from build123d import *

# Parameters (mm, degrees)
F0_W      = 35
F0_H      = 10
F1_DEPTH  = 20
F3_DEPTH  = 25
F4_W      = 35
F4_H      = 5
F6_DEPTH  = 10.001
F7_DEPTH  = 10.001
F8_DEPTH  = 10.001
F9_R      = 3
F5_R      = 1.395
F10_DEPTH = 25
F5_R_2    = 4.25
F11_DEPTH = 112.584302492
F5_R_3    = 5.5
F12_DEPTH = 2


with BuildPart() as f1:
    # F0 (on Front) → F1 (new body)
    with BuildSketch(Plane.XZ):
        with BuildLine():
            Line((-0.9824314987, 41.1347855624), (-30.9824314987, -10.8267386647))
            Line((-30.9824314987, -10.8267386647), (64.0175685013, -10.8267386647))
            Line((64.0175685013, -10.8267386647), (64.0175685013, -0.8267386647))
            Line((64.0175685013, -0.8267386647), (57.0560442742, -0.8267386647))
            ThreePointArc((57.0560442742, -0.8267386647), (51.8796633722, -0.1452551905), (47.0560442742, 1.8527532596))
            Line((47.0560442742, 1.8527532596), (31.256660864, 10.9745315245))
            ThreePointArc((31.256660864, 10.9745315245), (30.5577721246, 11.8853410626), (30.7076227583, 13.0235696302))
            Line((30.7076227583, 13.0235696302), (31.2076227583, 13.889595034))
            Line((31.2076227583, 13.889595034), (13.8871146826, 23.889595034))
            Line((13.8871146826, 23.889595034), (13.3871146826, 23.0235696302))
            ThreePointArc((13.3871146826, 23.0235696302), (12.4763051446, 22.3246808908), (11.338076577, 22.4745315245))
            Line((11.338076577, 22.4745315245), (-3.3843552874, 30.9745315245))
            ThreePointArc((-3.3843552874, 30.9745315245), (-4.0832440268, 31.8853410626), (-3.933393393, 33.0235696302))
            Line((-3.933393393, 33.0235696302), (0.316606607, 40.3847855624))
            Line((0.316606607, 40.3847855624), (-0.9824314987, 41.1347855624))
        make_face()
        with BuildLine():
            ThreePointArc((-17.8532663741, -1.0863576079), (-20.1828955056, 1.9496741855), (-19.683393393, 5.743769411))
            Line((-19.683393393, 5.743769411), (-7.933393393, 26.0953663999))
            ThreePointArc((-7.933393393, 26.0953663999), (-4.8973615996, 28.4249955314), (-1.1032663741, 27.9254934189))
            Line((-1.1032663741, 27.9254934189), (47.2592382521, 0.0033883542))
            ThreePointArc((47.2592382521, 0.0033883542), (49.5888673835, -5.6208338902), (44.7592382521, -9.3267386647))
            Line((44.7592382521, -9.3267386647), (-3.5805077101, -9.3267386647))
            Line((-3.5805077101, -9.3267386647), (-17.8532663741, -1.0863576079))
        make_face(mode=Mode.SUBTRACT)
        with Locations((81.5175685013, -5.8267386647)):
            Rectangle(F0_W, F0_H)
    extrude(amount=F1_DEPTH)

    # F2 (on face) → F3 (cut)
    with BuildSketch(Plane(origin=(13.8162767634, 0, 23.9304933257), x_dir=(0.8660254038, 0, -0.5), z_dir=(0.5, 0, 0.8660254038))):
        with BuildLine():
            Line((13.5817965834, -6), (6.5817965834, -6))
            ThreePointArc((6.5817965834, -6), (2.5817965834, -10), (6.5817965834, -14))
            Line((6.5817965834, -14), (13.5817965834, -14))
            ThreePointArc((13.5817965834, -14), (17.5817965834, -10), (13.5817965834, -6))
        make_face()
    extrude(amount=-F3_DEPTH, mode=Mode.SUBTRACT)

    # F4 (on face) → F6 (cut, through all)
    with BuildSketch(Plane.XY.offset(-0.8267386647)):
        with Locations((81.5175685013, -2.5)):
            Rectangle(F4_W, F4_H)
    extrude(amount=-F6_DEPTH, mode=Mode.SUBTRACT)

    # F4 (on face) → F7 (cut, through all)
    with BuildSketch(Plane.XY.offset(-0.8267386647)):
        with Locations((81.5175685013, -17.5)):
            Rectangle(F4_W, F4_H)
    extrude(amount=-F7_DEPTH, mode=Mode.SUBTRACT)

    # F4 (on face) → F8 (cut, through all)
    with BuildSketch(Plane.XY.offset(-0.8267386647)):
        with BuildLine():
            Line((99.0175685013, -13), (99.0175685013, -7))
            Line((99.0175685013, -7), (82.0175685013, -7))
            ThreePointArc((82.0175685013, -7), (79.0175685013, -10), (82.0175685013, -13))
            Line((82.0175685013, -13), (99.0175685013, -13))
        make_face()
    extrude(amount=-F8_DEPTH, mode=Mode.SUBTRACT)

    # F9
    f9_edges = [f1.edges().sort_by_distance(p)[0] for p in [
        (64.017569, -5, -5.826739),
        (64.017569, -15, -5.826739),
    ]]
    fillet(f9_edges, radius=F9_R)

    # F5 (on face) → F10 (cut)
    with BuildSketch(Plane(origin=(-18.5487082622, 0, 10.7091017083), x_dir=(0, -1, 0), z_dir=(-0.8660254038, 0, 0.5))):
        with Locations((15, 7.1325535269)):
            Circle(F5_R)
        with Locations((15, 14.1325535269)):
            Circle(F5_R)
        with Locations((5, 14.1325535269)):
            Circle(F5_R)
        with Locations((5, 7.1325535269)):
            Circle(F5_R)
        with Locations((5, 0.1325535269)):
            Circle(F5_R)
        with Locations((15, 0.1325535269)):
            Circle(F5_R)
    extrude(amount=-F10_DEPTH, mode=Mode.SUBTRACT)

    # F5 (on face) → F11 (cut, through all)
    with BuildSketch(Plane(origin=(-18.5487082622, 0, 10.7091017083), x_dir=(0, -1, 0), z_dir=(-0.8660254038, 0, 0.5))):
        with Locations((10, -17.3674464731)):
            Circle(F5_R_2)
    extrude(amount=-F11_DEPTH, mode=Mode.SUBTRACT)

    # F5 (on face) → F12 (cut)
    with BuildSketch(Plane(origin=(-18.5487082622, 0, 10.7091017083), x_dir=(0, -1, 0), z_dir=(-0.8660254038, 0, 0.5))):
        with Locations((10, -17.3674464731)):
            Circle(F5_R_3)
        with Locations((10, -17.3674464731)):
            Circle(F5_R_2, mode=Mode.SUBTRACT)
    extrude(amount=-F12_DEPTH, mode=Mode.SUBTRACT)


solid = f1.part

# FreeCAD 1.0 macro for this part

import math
import FreeCAD as App
import Part
import Sketcher

V = App.Vector
Q = App.Units.Quantity


def edges_at(feature, points):
    """Names of the edges that pass closest to the given points."""
    edges = feature.Shape.Edges
    near = lambda p: min(range(len(edges)), key=lambda i: edges[i].distToShape(Part.Vertex(*p))[0])
    return sorted({f"Edge{near(p) + 1}" for p in points})

doc = App.newDocument("Part")
body = doc.addObject("PartDesign::Body", "Body")

sketch1 = doc.addObject("Sketcher::SketchObject", "Sketch")
body.addObject(sketch1)
sketch1.AttachmentSupport = (doc.XZ_Plane, [""])
sketch1.MapMode = "FlatFace"
sketch1.addGeometry([
    Part.LineSegment(V(-0.982431, 41.134786, 0), V(-30.982431, -10.826739, 0)),
    Part.LineSegment(V(-30.982431, -10.826739, 0), V(99.017569, -10.826739, 0)),
    Part.LineSegment(V(99.017569, -10.826739, 0), V(99.017569, -0.826739, 0)),
    Part.LineSegment(V(99.017569, -0.826739, 0), V(57.056044, -0.826739, 0)),
    Part.ArcOfCircle(Part.Circle(V(57.056044, 19.173261, 0), V(0, 0, 1), 20), math.radians(-120), math.radians(-90)),
    Part.LineSegment(V(47.056044, 1.852753, 0), V(31.256661, 10.974532, 0)),
    Part.ArcOfCircle(Part.Circle(V(32.006661, 12.27357, 0), V(0, 0, 1), 1.5), math.radians(150), math.radians(240)),
    Part.LineSegment(V(30.707623, 13.02357, 0), V(31.207623, 13.889595, 0)),
    Part.LineSegment(V(31.207623, 13.889595, 0), V(13.887115, 23.889595, 0)),
    Part.LineSegment(V(13.887115, 23.889595, 0), V(13.387115, 23.02357, 0)),
    Part.ArcOfCircle(Part.Circle(V(12.088077, 23.77357, 0), V(0, 0, 1), 1.5), math.radians(-120), math.radians(-30)),
    Part.LineSegment(V(11.338077, 22.474532, 0), V(-3.384355, 30.974532, 0)),
    Part.ArcOfCircle(Part.Circle(V(-2.634355, 32.27357, 0), V(0, 0, 1), 1.5), math.radians(150), math.radians(240)),
    Part.LineSegment(V(-3.933393, 33.02357, 0), V(0.316607, 40.384786, 0)),
    Part.LineSegment(V(0.316607, 40.384786, 0), V(-0.982431, 41.134786, 0)),
    Part.LineSegment(V(-3.580508, -9.326739, 0), V(-17.853266, -1.086358, 0)),
    Part.ArcOfCircle(Part.Circle(V(-15.353266, 3.243769, 0), V(0, 0, 1), 5), math.radians(150), math.radians(240)),
    Part.LineSegment(V(-19.683393, 5.743769, 0), V(-7.933393, 26.095366, 0)),
    Part.ArcOfCircle(Part.Circle(V(-3.603266, 23.595366, 0), V(0, 0, 1), 5), math.radians(60), math.radians(150)),
    Part.LineSegment(V(-1.103266, 27.925493, 0), V(47.259238, 0.003388, 0)),
    Part.ArcOfCircle(Part.Circle(V(44.759238, -4.326739, 0), V(0, 0, 1), 5), math.radians(-90), math.radians(60)),
    Part.LineSegment(V(44.759238, -9.326739, 0), V(-3.580508, -9.326739, 0)),
], False)
sketch1.addConstraint([
    Sketcher.Constraint("Coincident", 0, 2, 1, 1),
    Sketcher.Constraint("Coincident", 1, 2, 2, 1),
    Sketcher.Constraint("Coincident", 2, 2, 3, 1),
    Sketcher.Constraint("Tangent", 3, 2, 4, 2),
    Sketcher.Constraint("Tangent", 4, 1, 5, 1),
    Sketcher.Constraint("Tangent", 5, 2, 6, 2),
    Sketcher.Constraint("Tangent", 6, 1, 7, 1),
    Sketcher.Constraint("Coincident", 7, 2, 8, 1),
    Sketcher.Constraint("Coincident", 8, 2, 9, 1),
    Sketcher.Constraint("Tangent", 9, 2, 10, 2),
    Sketcher.Constraint("Tangent", 10, 1, 11, 1),
    Sketcher.Constraint("Tangent", 11, 2, 12, 2),
    Sketcher.Constraint("Tangent", 12, 1, 13, 1),
    Sketcher.Constraint("Coincident", 13, 2, 14, 1),
    Sketcher.Constraint("Coincident", 14, 2, 0, 1),
    Sketcher.Constraint("Tangent", 15, 2, 16, 2),
    Sketcher.Constraint("Tangent", 16, 1, 17, 1),
    Sketcher.Constraint("Tangent", 17, 2, 18, 2),
    Sketcher.Constraint("Tangent", 18, 1, 19, 1),
    Sketcher.Constraint("Tangent", 19, 2, 20, 2),
    Sketcher.Constraint("Tangent", 20, 1, 21, 1),
    Sketcher.Constraint("Coincident", 21, 2, 15, 1),
    Sketcher.Constraint("Horizontal", 1),
    Sketcher.Constraint("Vertical", 2),
    Sketcher.Constraint("Horizontal", 3),
    Sketcher.Constraint("Horizontal", 21),
    Sketcher.Constraint("Equal", 6, 10),
    Sketcher.Constraint("Equal", 10, 12),
    Sketcher.Constraint("Equal", 16, 18),
    Sketcher.Constraint("Equal", 18, 20),
    Sketcher.Constraint("Perpendicular", 0, 5),
    Sketcher.Constraint("Perpendicular", 5, 7),
    Sketcher.Constraint("Perpendicular", 7, 8),
    Sketcher.Constraint("Perpendicular", 8, 9),
    Sketcher.Constraint("Perpendicular", 9, 11),
    Sketcher.Constraint("Perpendicular", 11, 13),
    Sketcher.Constraint("Perpendicular", 13, 14),
    Sketcher.Constraint("Parallel", 14, 15),
    Sketcher.Constraint("Perpendicular", 15, 17),
    Sketcher.Constraint("Perpendicular", 17, 19),
    Sketcher.Constraint("Equal", 7, 9),
    Sketcher.Constraint("Radius", 4, 20.0),
    Sketcher.Constraint("Radius", 16, 5.0),
    Sketcher.Constraint("Radius", 6, 1.5),
    Sketcher.Constraint("DistanceX", 1, 1, 1, 2, 130.0),
    Sketcher.Constraint("DistanceY", 2, 1, 2, 2, 10.0),
    Sketcher.Constraint("Angle", 0, Q("-120 deg")),
    Sketcher.Constraint("Distance", 0, 60.0),
    Sketcher.Constraint("Distance", 7, 1.0),
    Sketcher.Constraint("Distance", 8, 20.0),
    Sketcher.Constraint("Distance", 11, 17.0),
    Sketcher.Constraint("DistanceX", 17, 2, 12, 1, 4.0),
    Sketcher.Constraint("Distance", 13, 8.5),
    Sketcher.Constraint("Distance", 14, 1.5),
    Sketcher.Constraint("Distance", 17, 23.5),
    Sketcher.Constraint("DistanceY", 20, 3, 4, 3, 23.5),
    Sketcher.Constraint("DistanceY", 16, 3, 12, 3, 29.0298),
    Sketcher.Constraint("DistanceY", -1, 1, 4, 3, 19.173261),
    Sketcher.Constraint("DistanceX", -1, 1, 6, 3, 32.006661),
])
pad1 = doc.addObject("PartDesign::Pad", "Pad")
body.addObject(pad1)
pad1.Profile = sketch1
pad1.Length = 20

sketch2 = doc.addObject("Sketcher::SketchObject", "Sketch001")
body.addObject(sketch2)
sketch2.Placement = App.Placement(V(13.816277, 0, 23.930493), App.Rotation(V(0.866025404, 0, -0.5), V(0, 1, 0), V(0.5, 0, 0.866025404), "ZXY"))
sketch2.addGeometry([
    Part.LineSegment(V(13.581797, -6, 0), V(6.581797, -6, 0)),
    Part.ArcOfCircle(Part.Circle(V(6.581797, -10, 0), V(0, 0, 1), 4), math.radians(90), math.radians(270)),
    Part.LineSegment(V(6.581797, -14, 0), V(13.581797, -14, 0)),
    Part.ArcOfCircle(Part.Circle(V(13.581797, -10, 0), V(0, 0, 1), 4), math.radians(-90), math.radians(90)),
], False)
sketch2.addConstraint([
    Sketcher.Constraint("Tangent", 0, 2, 1, 1),
    Sketcher.Constraint("Tangent", 1, 2, 2, 1),
    Sketcher.Constraint("Tangent", 2, 2, 3, 1),
    Sketcher.Constraint("Tangent", 3, 2, 0, 1),
    Sketcher.Constraint("Horizontal", 0),
    Sketcher.Constraint("Horizontal", 2),
    Sketcher.Constraint("Radius", 1, 4.0),
    Sketcher.Constraint("DistanceX", 0, 2, 0, 1, 7.0),
    Sketcher.Constraint("DistanceY", 1, 3, -1, 1, 10.0),
    Sketcher.Constraint("DistanceX", -1, 1, 1, 3, 6.581797),
])
pocket1 = doc.addObject("PartDesign::Pocket", "Pocket")
body.addObject(pocket1)
pocket1.Profile = sketch2
pocket1.Length = 25

sketch3 = doc.addObject("Sketcher::SketchObject", "Sketch002")
body.addObject(sketch3)
sketch3.AttachmentSupport = (doc.XY_Plane, [""])
sketch3.MapMode = "FlatFace"
sketch3.AttachmentOffset = App.Placement(V(0, 0, -0.826739), App.Rotation())
sketch3.addGeometry([
    Part.LineSegment(V(64.017569, 0, 0), V(64.017569, -5, 0)),
    Part.LineSegment(V(64.017569, -5, 0), V(99.017569, -5, 0)),
    Part.LineSegment(V(99.017569, -5, 0), V(99.017569, 0, 0)),
    Part.LineSegment(V(99.017569, 0, 0), V(64.017569, 0, 0)),
], False)
sketch3.addConstraint([
    Sketcher.Constraint("Coincident", 0, 2, 1, 1),
    Sketcher.Constraint("Coincident", 1, 2, 2, 1),
    Sketcher.Constraint("Coincident", 2, 2, 3, 1),
    Sketcher.Constraint("Coincident", 3, 2, 0, 1),
    Sketcher.Constraint("Vertical", 0),
    Sketcher.Constraint("Horizontal", 1),
    Sketcher.Constraint("Vertical", 2),
    Sketcher.Constraint("Horizontal", 3),
    Sketcher.Constraint("PointOnObject", 2, 2, -1),
    Sketcher.Constraint("DistanceX", 1, 1, 1, 2, 35.0),
    Sketcher.Constraint("DistanceY", 0, 2, 0, 1, 5.0),
    Sketcher.Constraint("DistanceX", -1, 1, 0, 2, 64.017569),
])
pocket2 = doc.addObject("PartDesign::Pocket", "Pocket001")
body.addObject(pocket2)
pocket2.Profile = sketch3
pocket2.Type = "ThroughAll"

sketch4 = doc.addObject("Sketcher::SketchObject", "Sketch003")
body.addObject(sketch4)
sketch4.AttachmentSupport = (doc.XY_Plane, [""])
sketch4.MapMode = "FlatFace"
sketch4.AttachmentOffset = App.Placement(V(0, 0, -0.826739), App.Rotation())
sketch4.addGeometry([
    Part.LineSegment(V(64.017569, -15, 0), V(64.017569, -20, 0)),
    Part.LineSegment(V(64.017569, -20, 0), V(99.017569, -20, 0)),
    Part.LineSegment(V(99.017569, -20, 0), V(99.017569, -15, 0)),
    Part.LineSegment(V(99.017569, -15, 0), V(64.017569, -15, 0)),
], False)
sketch4.addConstraint([
    Sketcher.Constraint("Coincident", 0, 2, 1, 1),
    Sketcher.Constraint("Coincident", 1, 2, 2, 1),
    Sketcher.Constraint("Coincident", 2, 2, 3, 1),
    Sketcher.Constraint("Coincident", 3, 2, 0, 1),
    Sketcher.Constraint("Vertical", 0),
    Sketcher.Constraint("Horizontal", 1),
    Sketcher.Constraint("Vertical", 2),
    Sketcher.Constraint("Horizontal", 3),
    Sketcher.Constraint("DistanceX", 1, 1, 1, 2, 35.0),
    Sketcher.Constraint("DistanceY", 0, 2, 0, 1, 5.0),
    Sketcher.Constraint("DistanceY", 0, 2, -1, 1, 20.0),
    Sketcher.Constraint("DistanceX", -1, 1, 0, 2, 64.017569),
])
pocket3 = doc.addObject("PartDesign::Pocket", "Pocket002")
body.addObject(pocket3)
pocket3.Profile = sketch4
pocket3.Type = "ThroughAll"

sketch5 = doc.addObject("Sketcher::SketchObject", "Sketch004")
body.addObject(sketch5)
sketch5.AttachmentSupport = (doc.XY_Plane, [""])
sketch5.MapMode = "FlatFace"
sketch5.AttachmentOffset = App.Placement(V(0, 0, -0.826739), App.Rotation())
sketch5.addGeometry([
    Part.LineSegment(V(99.017569, -13, 0), V(99.017569, -7, 0)),
    Part.LineSegment(V(99.017569, -7, 0), V(82.017569, -7, 0)),
    Part.ArcOfCircle(Part.Circle(V(82.017569, -10, 0), V(0, 0, 1), 3), math.radians(90), math.radians(270)),
    Part.LineSegment(V(82.017569, -13, 0), V(99.017569, -13, 0)),
], False)
sketch5.addConstraint([
    Sketcher.Constraint("Coincident", 0, 2, 1, 1),
    Sketcher.Constraint("Tangent", 1, 2, 2, 1),
    Sketcher.Constraint("Tangent", 2, 2, 3, 1),
    Sketcher.Constraint("Coincident", 3, 2, 0, 1),
    Sketcher.Constraint("Vertical", 0),
    Sketcher.Constraint("Horizontal", 1),
    Sketcher.Constraint("Horizontal", 3),
    Sketcher.Constraint("Radius", 2, 3.0),
    Sketcher.Constraint("DistanceX", 1, 2, 1, 1, 17.0),
    Sketcher.Constraint("DistanceY", 2, 3, -1, 1, 10.0),
    Sketcher.Constraint("DistanceX", -1, 1, 2, 3, 82.017569),
])
pocket4 = doc.addObject("PartDesign::Pocket", "Pocket003")
body.addObject(pocket4)
pocket4.Profile = sketch5
pocket4.Type = "ThroughAll"
doc.recompute()

fillet = doc.addObject("PartDesign::Fillet", "Fillet")
body.addObject(fillet)
fillet.Base = (pocket4, edges_at(pocket4, [(64.018, -5, -5.827), (64.018, -15, -5.827)]))
fillet.Radius = 3

sketch6 = doc.addObject("Sketcher::SketchObject", "Sketch005")
body.addObject(sketch6)
sketch6.Placement = App.Placement(V(-18.548708, 0, 10.709102), App.Rotation(V(0, -1, 0), V(0.5, 0, 0.866025404), V(-0.866025404, 0, 0.5), "ZXY"))
sketch6.addGeometry([
    Part.Circle(V(15, 7.132554, 0), V(0, 0, 1), 1.395),
    Part.Circle(V(15, 14.132554, 0), V(0, 0, 1), 1.395),
    Part.Circle(V(5, 14.132554, 0), V(0, 0, 1), 1.395),
    Part.Circle(V(5, 7.132554, 0), V(0, 0, 1), 1.395),
    Part.Circle(V(5, 0.132554, 0), V(0, 0, 1), 1.395),
    Part.Circle(V(15, 0.132554, 0), V(0, 0, 1), 1.395),
], False)
sketch6.addConstraint([
    Sketcher.Constraint("Equal", 0, 1),
    Sketcher.Constraint("Equal", 1, 2),
    Sketcher.Constraint("Equal", 2, 3),
    Sketcher.Constraint("Equal", 3, 4),
    Sketcher.Constraint("Equal", 4, 5),
    Sketcher.Constraint("Horizontal", 1, 3, 2, 3),
    Sketcher.Constraint("Horizontal", 0, 3, 3, 3),
    Sketcher.Constraint("Horizontal", 4, 3, 5, 3),
    Sketcher.Constraint("Vertical", 0, 3, 1, 3),
    Sketcher.Constraint("Vertical", 2, 3, 3, 3),
    Sketcher.Constraint("Vertical", 3, 3, 4, 3),
    Sketcher.Constraint("Vertical", 1, 3, 5, 3),
    Sketcher.Constraint("Diameter", 0, 2.79),
    Sketcher.Constraint("DistanceX", -1, 1, 0, 3, 15.0),
    Sketcher.Constraint("DistanceX", -1, 1, 2, 3, 5.0),
    Sketcher.Constraint("DistanceY", 0, 3, 1, 3, 7.0),
    Sketcher.Constraint("DistanceY", 4, 3, 3, 3, 7.0),
    Sketcher.Constraint("DistanceY", -1, 1, 0, 3, 7.132554),
])
pocket5 = doc.addObject("PartDesign::Pocket", "Pocket004")
body.addObject(pocket5)
pocket5.Profile = sketch6
pocket5.Length = 25

sketch7 = doc.addObject("Sketcher::SketchObject", "Sketch006")
body.addObject(sketch7)
sketch7.Placement = App.Placement(V(-18.548708, 0, 10.709102), App.Rotation(V(0, -1, 0), V(0.5, 0, 0.866025404), V(-0.866025404, 0, 0.5), "ZXY"))
sketch7.addGeometry(Part.Circle(V(10, -17.367446, 0), V(0, 0, 1), 4.25), False)
sketch7.addConstraint([
    Sketcher.Constraint("Diameter", 0, 8.5),
    Sketcher.Constraint("DistanceX", -1, 1, 0, 3, 10.0),
    Sketcher.Constraint("DistanceY", 0, 3, -1, 1, 17.367446),
])
pocket6 = doc.addObject("PartDesign::Pocket", "Pocket005")
body.addObject(pocket6)
pocket6.Profile = sketch7
pocket6.Type = "ThroughAll"

sketch8 = doc.addObject("Sketcher::SketchObject", "Sketch007")
body.addObject(sketch8)
sketch8.Placement = App.Placement(V(-18.548708, 0, 10.709102), App.Rotation(V(0, -1, 0), V(0.5, 0, 0.866025404), V(-0.866025404, 0, 0.5), "ZXY"))
sketch8.addGeometry([
    Part.Circle(V(10, -17.367446, 0), V(0, 0, 1), 5.5),
    Part.Circle(V(10, -17.367446, 0), V(0, 0, 1), 4.25),
], False)
sketch8.addConstraint([
    Sketcher.Constraint("Coincident", 1, 3, 0, 3),
    Sketcher.Constraint("Diameter", 0, 11.0),
    Sketcher.Constraint("Diameter", 1, 8.5),
    Sketcher.Constraint("DistanceX", -1, 1, 0, 3, 10.0),
    Sketcher.Constraint("DistanceY", 0, 3, -1, 1, 17.367446),
])
pocket7 = doc.addObject("PartDesign::Pocket", "Pocket006")
body.addObject(pocket7)
pocket7.Profile = sketch8
pocket7.Length = 2

doc.recompute()
